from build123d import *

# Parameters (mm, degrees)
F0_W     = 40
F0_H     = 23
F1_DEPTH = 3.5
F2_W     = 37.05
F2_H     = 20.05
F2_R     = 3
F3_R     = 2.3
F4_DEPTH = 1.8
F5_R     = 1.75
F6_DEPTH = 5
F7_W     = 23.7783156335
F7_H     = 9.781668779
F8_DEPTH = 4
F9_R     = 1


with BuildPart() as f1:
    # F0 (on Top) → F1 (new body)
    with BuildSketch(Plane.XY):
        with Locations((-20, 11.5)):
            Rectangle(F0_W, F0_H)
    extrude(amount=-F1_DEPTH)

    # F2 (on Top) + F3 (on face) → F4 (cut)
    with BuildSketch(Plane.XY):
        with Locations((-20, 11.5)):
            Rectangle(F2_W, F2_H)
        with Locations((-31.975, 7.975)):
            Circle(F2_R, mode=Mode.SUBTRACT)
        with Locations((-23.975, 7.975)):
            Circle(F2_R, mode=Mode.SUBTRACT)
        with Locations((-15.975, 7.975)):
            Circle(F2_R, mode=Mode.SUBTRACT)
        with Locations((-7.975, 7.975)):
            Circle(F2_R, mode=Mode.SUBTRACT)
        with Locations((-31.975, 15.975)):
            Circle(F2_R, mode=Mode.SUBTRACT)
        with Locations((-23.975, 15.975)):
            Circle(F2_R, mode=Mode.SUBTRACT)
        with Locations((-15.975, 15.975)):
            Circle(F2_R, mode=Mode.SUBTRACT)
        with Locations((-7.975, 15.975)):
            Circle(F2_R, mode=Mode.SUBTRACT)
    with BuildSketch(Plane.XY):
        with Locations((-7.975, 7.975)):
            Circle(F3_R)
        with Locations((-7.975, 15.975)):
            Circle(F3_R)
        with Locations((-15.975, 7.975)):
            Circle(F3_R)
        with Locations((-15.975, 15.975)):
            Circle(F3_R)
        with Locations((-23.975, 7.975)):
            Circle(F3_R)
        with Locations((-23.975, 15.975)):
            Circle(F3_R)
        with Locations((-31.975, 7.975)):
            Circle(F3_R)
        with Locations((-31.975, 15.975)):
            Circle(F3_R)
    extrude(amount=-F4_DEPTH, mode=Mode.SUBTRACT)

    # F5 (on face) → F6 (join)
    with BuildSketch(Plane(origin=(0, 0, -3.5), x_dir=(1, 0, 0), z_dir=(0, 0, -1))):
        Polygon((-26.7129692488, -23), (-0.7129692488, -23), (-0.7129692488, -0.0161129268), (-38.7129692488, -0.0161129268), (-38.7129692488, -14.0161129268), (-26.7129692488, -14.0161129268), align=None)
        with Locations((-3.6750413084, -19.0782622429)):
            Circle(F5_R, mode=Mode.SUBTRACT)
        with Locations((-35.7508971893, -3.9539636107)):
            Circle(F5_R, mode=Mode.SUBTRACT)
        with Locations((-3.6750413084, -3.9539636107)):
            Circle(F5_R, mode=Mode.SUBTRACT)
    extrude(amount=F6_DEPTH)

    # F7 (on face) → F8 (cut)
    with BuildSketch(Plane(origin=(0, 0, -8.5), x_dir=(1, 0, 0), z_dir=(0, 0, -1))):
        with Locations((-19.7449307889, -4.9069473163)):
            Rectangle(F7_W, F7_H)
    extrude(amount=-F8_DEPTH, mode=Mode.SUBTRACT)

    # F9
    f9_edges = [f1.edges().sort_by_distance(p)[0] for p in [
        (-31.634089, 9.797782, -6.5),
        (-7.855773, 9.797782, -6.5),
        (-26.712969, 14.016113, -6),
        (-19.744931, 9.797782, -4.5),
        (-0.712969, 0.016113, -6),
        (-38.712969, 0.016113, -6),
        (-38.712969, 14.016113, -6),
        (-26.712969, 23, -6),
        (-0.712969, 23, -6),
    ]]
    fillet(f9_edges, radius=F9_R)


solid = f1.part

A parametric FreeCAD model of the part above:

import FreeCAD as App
import Part
import Sketcher
from FreeCAD import Vector
Q = App.Units.Quantity


def edges_at(feature, points):
    """Names of the edges that pass closest to the given points."""
    edges = feature.Shape.Edges
    near = lambda p: min(range(len(edges)), key=lambda i: edges[i].distToShape(Part.Vertex(*p))[0])
    return sorted({f"Edge{near(p) + 1}" for p in points})


def add_polygon(sketch, points):
    """Adds a closed chain of lines whose ends are joined by coincident constraints."""
    first, n = sketch.GeometryCount, len(points)
    for a, b in zip(points, points[1:] + points[:1]):
        sketch.addGeometry(Part.LineSegment(App.Vector(*a, 0), App.Vector(*b, 0)), False)
    for i in range(n):
        sketch.addConstraint(Sketcher.Constraint("Coincident", first + i, 2, first + (i + 1) % n, 1))

doc = App.newDocument("Part")
body = doc.addObject("PartDesign::Body", "Body")

# Sketch on XY plane
sketch1 = body.newObject("Sketcher::SketchObject", "Sketch")
sketch1.AttachmentSupport = (doc.getObject("XY_Plane"), [""])
sketch1.MapMode = "FlatFace"
add_polygon(sketch1, [(-40, 23), (-40, 0), (0, 0), (0, 23)])  # lines 0-3
sketch1.addConstraint([
    Sketcher.Constraint("Vertical", 0),
    Sketcher.Constraint("Horizontal", 1),
    Sketcher.Constraint("Vertical", 2),
    Sketcher.Constraint("Horizontal", 3),
    Sketcher.Constraint("Coincident", 1, 2, -1, 1),
    Sketcher.Constraint("DistanceX", 1, 1, 1, 2, Q("40 mm")),
    Sketcher.Constraint("DistanceY", 0, 2, 0, 1, Q("23 mm")),
])
pad1 = body.newObject("PartDesign::Pad", "Pad")
pad1.Profile = sketch1
pad1.Length = 3.5
pad1.Reversed = True

# Sketch on XY plane
sketch2 = body.newObject("Sketcher::SketchObject", "Sketch001")
sketch2.AttachmentSupport = (doc.getObject("XY_Plane"), [""])
sketch2.MapMode = "FlatFace"
add_polygon(sketch2, [(-38.525, 21.525), (-38.525, 1.475), (-1.475, 1.475), (-1.475, 21.525)])  # lines 0-3
sketch2.addGeometry(Part.Circle(Vector(-31.975, 7.975, 0), Vector(0, 0, 1), 3), False)  # 4
sketch2.addGeometry(Part.Circle(Vector(-23.975, 7.975, 0), Vector(0, 0, 1), 3), False)  # 5
sketch2.addGeometry(Part.Circle(Vector(-15.975, 7.975, 0), Vector(0, 0, 1), 3), False)  # 6
sketch2.addGeometry(Part.Circle(Vector(-7.975, 7.975, 0), Vector(0, 0, 1), 3), False)  # 7
sketch2.addGeometry(Part.Circle(Vector(-31.975, 15.975, 0), Vector(0, 0, 1), 3), False)  # 8
sketch2.addGeometry(Part.Circle(Vector(-23.975, 15.975, 0), Vector(0, 0, 1), 3), False)  # 9
sketch2.addGeometry(Part.Circle(Vector(-15.975, 15.975, 0), Vector(0, 0, 1), 3), False)  # 10
sketch2.addGeometry(Part.Circle(Vector(-7.975, 15.975, 0), Vector(0, 0, 1), 3), False)  # 11
sketch2.addGeometry(Part.Circle(Vector(-7.975, 7.975, 0), Vector(0, 0, 1), 2.3), False)  # 12
sketch2.addGeometry(Part.Circle(Vector(-7.975, 15.975, 0), Vector(0, 0, 1), 2.3), False)  # 13
sketch2.addGeometry(Part.Circle(Vector(-15.975, 7.975, 0), Vector(0, 0, 1), 2.3), False)  # 14
sketch2.addGeometry(Part.Circle(Vector(-15.975, 15.975, 0), Vector(0, 0, 1), 2.3), False)  # 15
sketch2.addGeometry(Part.Circle(Vector(-23.975, 7.975, 0), Vector(0, 0, 1), 2.3), False)  # 16
sketch2.addGeometry(Part.Circle(Vector(-23.975, 15.975, 0), Vector(0, 0, 1), 2.3), False)  # 17
sketch2.addGeometry(Part.Circle(Vector(-31.975, 7.975, 0), Vector(0, 0, 1), 2.3), False)  # 18
sketch2.addGeometry(Part.Circle(Vector(-31.975, 15.975, 0), Vector(0, 0, 1), 2.3), False)  # 19
sketch2.addConstraint([
    Sketcher.Constraint("Vertical", 0),
    Sketcher.Constraint("Horizontal", 1),
    Sketcher.Constraint("Vertical", 2),
    Sketcher.Constraint("Horizontal", 3),
    Sketcher.Constraint("Coincident", 12, 3, 7, 3),
    Sketcher.Constraint("Coincident", 13, 3, 11, 3),
    Sketcher.Constraint("Coincident", 14, 3, 6, 3),
    Sketcher.Constraint("Coincident", 15, 3, 10, 3),
    Sketcher.Constraint("Coincident", 16, 3, 5, 3),
    Sketcher.Constraint("Coincident", 17, 3, 9, 3),
    Sketcher.Constraint("Coincident", 18, 3, 4, 3),
    Sketcher.Constraint("Coincident", 19, 3, 8, 3),
    Sketcher.Constraint("Equal", 4, 5),
    Sketcher.Constraint("Equal", 5, 6),
    Sketcher.Constraint("Equal", 6, 7),
    Sketcher.Constraint("Equal", 7, 8),
    Sketcher.Constraint("Equal", 8, 9),
    Sketcher.Constraint("Equal", 9, 10),
    Sketcher.Constraint("Equal", 10, 11),
    Sketcher.Constraint("Equal", 12, 13),
    Sketcher.Constraint("Equal", 13, 14),
    Sketcher.Constraint("Equal", 14, 15),
    Sketcher.Constraint("Equal", 15, 16),
    Sketcher.Constraint("Equal", 16, 17),
    Sketcher.Constraint("Equal", 17, 18),
    Sketcher.Constraint("Equal", 18, 19),
    Sketcher.Constraint("Horizontal", 4, 3, 5, 3),
    Sketcher.Constraint("Horizontal", 5, 3, 6, 3),
    Sketcher.Constraint("Horizontal", 6, 3, 7, 3),
    Sketcher.Constraint("Horizontal", 8, 3, 9, 3),
    Sketcher.Constraint("Horizontal", 9, 3, 10, 3),
    Sketcher.Constraint("Horizontal", 10, 3, 11, 3),
    Sketcher.Constraint("Vertical", 4, 3, 8, 3),
    Sketcher.Constraint("Vertical", 5, 3, 9, 3),
    Sketcher.Constraint("Vertical", 6, 3, 10, 3),
    Sketcher.Constraint("Vertical", 7, 3, 11, 3),
    Sketcher.Constraint("Diameter", 4, Q("6 mm")),
    Sketcher.Constraint("Diameter", 12, Q("4.6 mm")),
    Sketcher.Constraint("DistanceX", 4, 3, 5, 3, Q("8 mm")),
    Sketcher.Constraint("DistanceX", 5, 3, 6, 3, Q("8 mm")),
    Sketcher.Constraint("DistanceX", 6, 3, 7, 3, Q("8 mm")),
    Sketcher.Constraint("DistanceY", 4, 3, 8, 3, Q("8 mm")),
    Sketcher.Constraint("DistanceX", 1, 1, 1, 2, Q("37.05 mm")),
    Sketcher.Constraint("DistanceY", 0, 2, 0, 1, Q("20.05 mm")),
    Sketcher.Constraint("DistanceY", 0, 2, 4, 3, Q("6.5 mm")),
    Sketcher.Constraint("DistanceX", 7, 3, 1, 2, Q("6.5 mm")),
    Sketcher.Constraint("DistanceX", 4, 3, -1, 1, Q("31.975 mm")),
    Sketcher.Constraint("DistanceY", -1, 1, 4, 3, Q("7.975 mm")),
])
pocket1 = body.newObject("PartDesign::Pocket", "Pocket")
pocket1.Profile = sketch2
pocket1.Length = 1.8

# Sketch on XY plane
sketch3 = body.newObject("Sketcher::SketchObject", "Sketch002")
sketch3.AttachmentSupport = (doc.getObject("XY_Plane"), [""])
sketch3.MapMode = "FlatFace"
sketch3.AttachmentOffset = App.Placement(Vector(0, 0, -3.5), App.Rotation())
add_polygon(sketch3, [(-26.712969, 23), (-0.712969, 23), (-0.712969, 0.016113), (-38.712969, 0.016113), (-38.712969, 14.016113), (-26.712969, 14.016113)])  # lines 0-5
sketch3.addGeometry(Part.Circle(Vector(-3.675041, 19.078262, 0), Vector(0, 0, 1), 1.75), False)  # 6
sketch3.addGeometry(Part.Circle(Vector(-35.750897, 3.953964, 0), Vector(0, 0, 1), 1.75), False)  # 7
sketch3.addGeometry(Part.Circle(Vector(-3.675041, 3.953964, 0), Vector(0, 0, 1), 1.75), False)  # 8
sketch3.addConstraint([
    Sketcher.Constraint("Horizontal", 0),
    Sketcher.Constraint("Vertical", 1),
    Sketcher.Constraint("Horizontal", 2),
    Sketcher.Constraint("Vertical", 3),
    Sketcher.Constraint("Horizontal", 4),
    Sketcher.Constraint("Vertical", 5),
    Sketcher.Constraint("Equal", 6, 7),
    Sketcher.Constraint("Equal", 7, 8),
    Sketcher.Constraint("Horizontal", 7, 3, 8, 3),
    Sketcher.Constraint("Vertical", 6, 3, 8, 3),
    Sketcher.Constraint("Diameter", 6, Q("3.5 mm")),
    Sketcher.Constraint("DistanceX", 0, 1, 0, 2, Q("26 mm")),
    Sketcher.Constraint("DistanceX", 2, 2, 2, 1, Q("38 mm")),
    Sketcher.Constraint("DistanceY", 3, 1, 3, 2, Q("14 mm")),
    Sketcher.Constraint("DistanceY", -1, 1, 0, 2, Q("23 mm")),
    Sketcher.Constraint("DistanceY", 7, 3, 6, 3, Q("15.124299 mm")),
    Sketcher.Constraint("DistanceY", 1, 2, 1, 1, Q("22.983887 mm")),
    Sketcher.Constraint("DistanceX", 6, 3, -1, 1, Q("3.675041 mm")),
    Sketcher.Constraint("DistanceX", 0, 2, -1, 1, Q("0.712969 mm")),
    Sketcher.Constraint("DistanceY", 1, 2, 8, 3, Q("3.937851 mm")),
    Sketcher.Constraint("DistanceX", 7, 3, -1, 1, Q("35.750897 mm")),
])
pad2 = body.newObject("PartDesign::Pad", "Pad001")
pad2.Profile = sketch3
pad2.Length = 5
pad2.Reversed = True

# Sketch on XY plane
sketch4 = body.newObject("Sketcher::SketchObject", "Sketch003")
sketch4.AttachmentSupport = (doc.getObject("XY_Plane"), [""])
sketch4.MapMode = "FlatFace"
sketch4.AttachmentOffset = App.Placement(Vector(0, 0, -8.5), App.Rotation())
add_polygon(sketch4, [(-31.634089, 0.016113), (-31.634089, 9.797782), (-7.855773, 9.797782), (-7.855773, 0.016113)])  # lines 0-3
sketch4.addConstraint([
    Sketcher.Constraint("Vertical", 0),
    Sketcher.Constraint("Horizontal", 1),
    Sketcher.Constraint("Vertical", 2),
    Sketcher.Constraint("Horizontal", 3),
    Sketcher.Constraint("DistanceY", 0, 1, 0, 2, Q("9.781669 mm")),
    Sketcher.Constraint("DistanceX", 1, 1, 1, 2, Q("23.778316 mm")),
    Sketcher.Constraint("DistanceX", 0, 2, -1, 1, Q("31.634089 mm")),
    Sketcher.Constraint("DistanceY", -1, 1, 0, 2, Q("9.797782 mm")),
])
pocket2 = body.newObject("PartDesign::Pocket", "Pocket001")
pocket2.Profile = sketch4
pocket2.Length = 4
pocket2.Reversed = True
doc.recompute()

fillet = body.newObject("PartDesign::Fillet", "Fillet")
fillet.Base = (pocket2, edges_at(pocket2, [
    (-31.634, 9.798, -6.5),
    (-7.856, 9.798, -6.5),
    (-26.713, 14.016, -6),
    (-19.745, 9.798, -4.5),
    (-0.713, 0.016, -6),
    (-38.713, 0.016, -6),
    (-38.713, 14.016, -6),
    (-26.713, 23, -6),
    (-0.713, 23, -6),
]))
fillet.Radius = 1

doc.recompute()
